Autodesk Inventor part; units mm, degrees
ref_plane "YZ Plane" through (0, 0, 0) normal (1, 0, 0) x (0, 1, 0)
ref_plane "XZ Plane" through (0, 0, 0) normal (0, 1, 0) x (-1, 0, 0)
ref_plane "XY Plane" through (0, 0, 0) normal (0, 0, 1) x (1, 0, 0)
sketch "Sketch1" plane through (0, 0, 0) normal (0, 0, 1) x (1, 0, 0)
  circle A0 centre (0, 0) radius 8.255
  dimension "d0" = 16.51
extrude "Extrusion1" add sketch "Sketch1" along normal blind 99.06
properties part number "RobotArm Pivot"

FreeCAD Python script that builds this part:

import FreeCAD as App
import Part
import Sketcher
Q = App.Units.Quantity

doc = App.newDocument("Part")
params = doc.addObject("Spreadsheet::Sheet", "Params")
for row, (alias, value) in enumerate([
    ("sketch1_diameter", "0.65 in"),
    ("pad1_length", "3.9 in"),
], start=1):
    params.set(f"A{row}", alias)
    params.set(f"B{row}", "=" + value)
    params.setAlias(f"B{row}", alias)

body = doc.addObject("PartDesign::Body", "Body")

# Sketch on XY plane
sketch1 = body.newObject("Sketcher::SketchObject", "Sketch")
sketch1.AttachmentSupport = (doc.getObject("XY_Plane"), [""])
sketch1.MapMode = "FlatFace"
sketch1.addGeometry(Part.Circle(App.Vector(0, 0, 0), App.Vector(0, 0, 1), 8), False)
sketch1.addConstraint([
    Sketcher.Constraint("Coincident", 0, 3, -1, 1),
    Sketcher.Constraint("Diameter", 0, Q("0.65 in")),
])
sketch1.setExpression("Constraints[1]", "Params.sketch1_diameter")
pad1 = body.newObject("PartDesign::Pad", "Pad")
pad1.Profile = sketch1
pad1.setExpression("Length", "Params.pad1_length")

doc.recompute()
